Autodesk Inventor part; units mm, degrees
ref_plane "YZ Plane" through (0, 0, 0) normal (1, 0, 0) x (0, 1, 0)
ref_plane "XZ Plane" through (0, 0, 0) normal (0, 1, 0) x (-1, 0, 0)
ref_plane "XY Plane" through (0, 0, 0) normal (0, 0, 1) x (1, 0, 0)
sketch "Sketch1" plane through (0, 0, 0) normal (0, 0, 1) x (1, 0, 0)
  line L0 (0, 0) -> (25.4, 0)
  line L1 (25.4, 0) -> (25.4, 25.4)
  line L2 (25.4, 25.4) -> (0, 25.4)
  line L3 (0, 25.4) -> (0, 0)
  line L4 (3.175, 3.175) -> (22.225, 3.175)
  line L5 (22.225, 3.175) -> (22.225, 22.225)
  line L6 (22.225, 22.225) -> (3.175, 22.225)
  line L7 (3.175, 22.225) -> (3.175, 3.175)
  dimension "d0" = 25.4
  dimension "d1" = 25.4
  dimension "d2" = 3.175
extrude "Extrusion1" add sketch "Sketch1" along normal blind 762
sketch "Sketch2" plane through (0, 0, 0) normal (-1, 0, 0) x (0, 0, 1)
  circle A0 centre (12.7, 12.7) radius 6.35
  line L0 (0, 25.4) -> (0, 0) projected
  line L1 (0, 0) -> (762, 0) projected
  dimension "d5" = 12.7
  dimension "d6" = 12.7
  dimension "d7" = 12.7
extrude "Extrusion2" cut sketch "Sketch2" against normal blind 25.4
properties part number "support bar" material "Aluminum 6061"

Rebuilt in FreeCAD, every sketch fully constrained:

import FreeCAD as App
import Part
import Sketcher

V = App.Vector
Q = App.Units.Quantity

doc = App.newDocument("Part")
body = doc.addObject("PartDesign::Body", "Body")

sketch1 = body.newObject("Sketcher::SketchObject", "Sketch")
sketch1.AttachmentSupport = (doc.getObject("XY_Plane"), [""])
sketch1.MapMode = "FlatFace"
sketch1.addGeometry(Part.LineSegment(V(0, 25.4, 0), V(0, 0, 0)), False)
sketch1.addGeometry(Part.LineSegment(V(0, 0, 0), V(25.4, 0, 0)), False)
sketch1.addGeometry(Part.LineSegment(V(25.4, 0, 0), V(25.4, 25.4, 0)), False)
sketch1.addGeometry(Part.LineSegment(V(25.4, 25.4, 0), V(0, 25.4, 0)), False)
sketch1.addGeometry(Part.LineSegment(V(22.225, 3.175, 0), V(3.175, 3.175, 0)), False)
sketch1.addGeometry(Part.LineSegment(V(3.175, 3.175, 0), V(3.175, 22.225, 0)), False)
sketch1.addGeometry(Part.LineSegment(V(3.175, 22.225, 0), V(22.225, 22.225, 0)), False)
sketch1.addGeometry(Part.LineSegment(V(22.225, 22.225, 0), V(22.225, 3.175, 0)), False)
sketch1.addConstraint(Sketcher.Constraint("Coincident", 0, 2, 1, 1))
sketch1.addConstraint(Sketcher.Constraint("Coincident", 1, 2, 2, 1))
sketch1.addConstraint(Sketcher.Constraint("Coincident", 2, 2, 3, 1))
sketch1.addConstraint(Sketcher.Constraint("Coincident", 3, 2, 0, 1))
sketch1.addConstraint(Sketcher.Constraint("Coincident", 4, 2, 5, 1))
sketch1.addConstraint(Sketcher.Constraint("Coincident", 5, 2, 6, 1))
sketch1.addConstraint(Sketcher.Constraint("Coincident", 6, 2, 7, 1))
sketch1.addConstraint(Sketcher.Constraint("Coincident", 7, 2, 4, 1))
sketch1.addConstraint(Sketcher.Constraint("Vertical", 0))
sketch1.addConstraint(Sketcher.Constraint("Horizontal", 1))
sketch1.addConstraint(Sketcher.Constraint("Vertical", 2))
sketch1.addConstraint(Sketcher.Constraint("Horizontal", 3))
sketch1.addConstraint(Sketcher.Constraint("Horizontal", 4))
sketch1.addConstraint(Sketcher.Constraint("Vertical", 5))
sketch1.addConstraint(Sketcher.Constraint("Horizontal", 6))
sketch1.addConstraint(Sketcher.Constraint("Vertical", 7))
sketch1.addConstraint(Sketcher.Constraint("Coincident", 0, 2, -1, 1))
sketch1.addConstraint(Sketcher.Constraint("Equal", 3, 0))
sketch1.addConstraint(Sketcher.Constraint("Equal", 6, 5))
sketch1.addConstraint(Sketcher.Constraint("DistanceX", 1, 1, 1, 2, Q("1 in")))
sketch1.addConstraint(Sketcher.Constraint("DistanceX", -1, 1, 4, 2, Q("0.125 in")))
sketch1.addConstraint(Sketcher.Constraint("DistanceY", -1, 1, 4, 2, Q("0.125 in")))
sketch1.addConstraint(Sketcher.Constraint("DistanceY", 5, 2, 3, 2, Q("0.125 in")))
pad1 = body.newObject("PartDesign::Pad", "Pad")
pad1.Profile = sketch1
pad1.Length = Q("30 in")

sketch2 = body.newObject("Sketcher::SketchObject", "Sketch001")
sketch2.AttachmentSupport = (doc.getObject("YZ_Plane"), [""])
sketch2.MapMode = "FlatFace"
sketch2.addGeometry(Part.Circle(V(12.7, 12.7, 0), V(0, 0, 1), 6.35), False)
sketch2.addConstraint(Sketcher.Constraint("Diameter", 0, Q("0.5 in")))
sketch2.addConstraint(Sketcher.Constraint("DistanceX", -1, 1, 0, 3, Q("0.5 in")))
sketch2.addConstraint(Sketcher.Constraint("DistanceY", -1, 1, 0, 3, Q("0.5 in")))
pocket1 = body.newObject("PartDesign::Pocket", "Pocket")
pocket1.Profile = sketch2
pocket1.Length = Q("1 in")
pocket1.Reversed = True

doc.recompute()
